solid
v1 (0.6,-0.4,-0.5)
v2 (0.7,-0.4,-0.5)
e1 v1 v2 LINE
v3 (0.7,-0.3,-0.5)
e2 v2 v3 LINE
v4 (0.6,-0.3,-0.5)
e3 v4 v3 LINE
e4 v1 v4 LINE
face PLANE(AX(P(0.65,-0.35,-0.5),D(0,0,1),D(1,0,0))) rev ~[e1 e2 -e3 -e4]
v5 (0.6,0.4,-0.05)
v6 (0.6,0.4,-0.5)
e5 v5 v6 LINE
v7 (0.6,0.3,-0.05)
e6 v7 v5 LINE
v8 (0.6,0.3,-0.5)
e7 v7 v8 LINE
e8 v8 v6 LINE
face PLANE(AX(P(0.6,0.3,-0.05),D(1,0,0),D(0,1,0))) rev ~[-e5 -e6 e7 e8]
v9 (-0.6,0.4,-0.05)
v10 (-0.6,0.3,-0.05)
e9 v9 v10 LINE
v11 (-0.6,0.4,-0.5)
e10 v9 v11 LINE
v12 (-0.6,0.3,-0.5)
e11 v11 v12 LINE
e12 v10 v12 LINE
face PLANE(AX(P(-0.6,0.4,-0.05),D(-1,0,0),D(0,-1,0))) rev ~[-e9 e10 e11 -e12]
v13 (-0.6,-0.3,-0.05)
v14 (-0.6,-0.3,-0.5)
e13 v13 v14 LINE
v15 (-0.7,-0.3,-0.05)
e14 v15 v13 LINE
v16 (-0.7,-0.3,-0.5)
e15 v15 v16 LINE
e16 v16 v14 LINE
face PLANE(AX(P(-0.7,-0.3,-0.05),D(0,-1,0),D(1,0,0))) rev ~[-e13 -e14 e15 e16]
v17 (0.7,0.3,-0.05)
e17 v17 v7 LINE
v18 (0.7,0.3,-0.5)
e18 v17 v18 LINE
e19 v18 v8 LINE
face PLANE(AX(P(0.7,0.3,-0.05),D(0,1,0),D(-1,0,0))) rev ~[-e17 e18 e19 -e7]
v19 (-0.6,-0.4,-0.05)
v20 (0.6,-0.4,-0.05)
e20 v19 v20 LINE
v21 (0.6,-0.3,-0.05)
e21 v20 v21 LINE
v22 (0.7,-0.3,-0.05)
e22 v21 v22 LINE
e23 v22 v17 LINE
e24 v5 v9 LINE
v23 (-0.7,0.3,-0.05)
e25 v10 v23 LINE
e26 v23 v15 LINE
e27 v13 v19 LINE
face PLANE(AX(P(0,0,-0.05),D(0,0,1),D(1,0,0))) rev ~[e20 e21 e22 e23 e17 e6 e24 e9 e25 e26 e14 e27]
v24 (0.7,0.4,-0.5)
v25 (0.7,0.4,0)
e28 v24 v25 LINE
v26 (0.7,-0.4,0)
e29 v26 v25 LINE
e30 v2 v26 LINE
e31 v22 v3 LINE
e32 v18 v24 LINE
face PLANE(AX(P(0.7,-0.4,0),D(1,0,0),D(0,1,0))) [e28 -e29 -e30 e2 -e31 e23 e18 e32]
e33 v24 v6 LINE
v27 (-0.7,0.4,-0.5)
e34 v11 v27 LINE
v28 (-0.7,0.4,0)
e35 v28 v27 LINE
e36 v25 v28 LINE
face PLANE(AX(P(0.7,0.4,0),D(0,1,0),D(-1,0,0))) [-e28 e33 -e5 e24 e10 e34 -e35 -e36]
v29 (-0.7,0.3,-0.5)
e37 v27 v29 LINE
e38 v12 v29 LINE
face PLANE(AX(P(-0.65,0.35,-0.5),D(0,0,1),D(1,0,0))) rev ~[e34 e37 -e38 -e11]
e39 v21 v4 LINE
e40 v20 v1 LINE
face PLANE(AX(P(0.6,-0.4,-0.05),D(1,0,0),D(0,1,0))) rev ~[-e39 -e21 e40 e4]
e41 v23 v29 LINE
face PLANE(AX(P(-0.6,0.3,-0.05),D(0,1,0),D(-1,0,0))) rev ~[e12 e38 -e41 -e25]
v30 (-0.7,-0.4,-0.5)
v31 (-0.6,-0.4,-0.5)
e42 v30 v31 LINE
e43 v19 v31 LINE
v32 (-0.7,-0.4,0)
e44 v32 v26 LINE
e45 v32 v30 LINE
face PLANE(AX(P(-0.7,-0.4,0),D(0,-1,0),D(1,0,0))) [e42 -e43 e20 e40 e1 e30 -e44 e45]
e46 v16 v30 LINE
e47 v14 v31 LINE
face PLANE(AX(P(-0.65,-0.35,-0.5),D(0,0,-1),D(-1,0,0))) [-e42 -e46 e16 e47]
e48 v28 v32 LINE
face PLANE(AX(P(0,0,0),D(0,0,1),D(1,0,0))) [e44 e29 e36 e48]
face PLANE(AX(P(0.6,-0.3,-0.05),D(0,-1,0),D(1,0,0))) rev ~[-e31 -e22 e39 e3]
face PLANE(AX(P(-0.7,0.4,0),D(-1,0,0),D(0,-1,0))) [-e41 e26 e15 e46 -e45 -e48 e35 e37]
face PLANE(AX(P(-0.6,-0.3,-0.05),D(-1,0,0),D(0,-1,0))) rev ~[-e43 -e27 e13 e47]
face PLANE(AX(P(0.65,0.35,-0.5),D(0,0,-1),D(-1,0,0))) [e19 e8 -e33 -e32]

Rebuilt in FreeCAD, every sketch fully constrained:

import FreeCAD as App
import Part
import Sketcher

V = App.Vector


def add_polygon(sketch, points):
    """Adds a closed chain of lines whose ends are joined by coincident constraints."""
    first, n = sketch.GeometryCount, len(points)
    for a, b in zip(points, points[1:] + points[:1]):
        sketch.addGeometry(Part.LineSegment(App.Vector(*a, 0), App.Vector(*b, 0)), False)
    for i in range(n):
        sketch.addConstraint(Sketcher.Constraint("Coincident", first + i, 2, first + (i + 1) % n, 1))

doc = App.newDocument("Part")
body = doc.addObject("PartDesign::Body", "Body")

# Sketch on XY plane
sketch1 = body.newObject("Sketcher::SketchObject", "Sketch")
sketch1.AttachmentSupport = (doc.getObject("XY_Plane"), [""])
sketch1.MapMode = "FlatFace"
add_polygon(sketch1, [(-0.7, 0.4), (-0.7, -0.4), (0.7, -0.4), (0.7, 0.4)])  # lines 0-3
sketch1.addConstraint(Sketcher.Constraint("Vertical", 0))
sketch1.addConstraint(Sketcher.Constraint("Horizontal", 1))
sketch1.addConstraint(Sketcher.Constraint("Vertical", 2))
sketch1.addConstraint(Sketcher.Constraint("Horizontal", 3))
sketch1.addConstraint(Sketcher.Constraint("Symmetric", 0, 2, 2, 2, -1, 1))
sketch1.addConstraint(Sketcher.Constraint("DistanceX", 0, 2, -1, 1, 0.7))
sketch1.addConstraint(Sketcher.Constraint("DistanceY", 0, 2, 0, 1, 0.8))
pad1 = body.newObject("PartDesign::Pad", "Pad")
pad1.Profile = sketch1
pad1.Length = 0.05
pad1.Reversed = True

# Sketch on XY plane
sketch2 = body.newObject("Sketcher::SketchObject", "Sketch001")
sketch2.AttachmentSupport = (doc.getObject("XY_Plane"), [""])
sketch2.MapMode = "FlatFace"
sketch2.AttachmentOffset = App.Placement(V(0, 0, -0.05), App.Rotation())
add_polygon(sketch2, [(-0.7, 0.3), (-0.7, 0.4), (-0.6, 0.4), (-0.6, 0.3)])  # lines 0-3
add_polygon(sketch2, [(-0.7, -0.3), (-0.6, -0.3), (-0.6, -0.4), (-0.7, -0.4)])  # lines 4-7
add_polygon(sketch2, [(0.7, 0.3), (0.6, 0.3), (0.6, 0.4), (0.7, 0.4)])  # lines 8-11
add_polygon(sketch2, [(0.7, -0.4), (0.6, -0.4), (0.6, -0.3), (0.7, -0.3)])  # lines 12-15
sketch2.addConstraint(Sketcher.Constraint("Vertical", 0))
sketch2.addConstraint(Sketcher.Constraint("Horizontal", 1))
sketch2.addConstraint(Sketcher.Constraint("Vertical", 2))
sketch2.addConstraint(Sketcher.Constraint("Horizontal", 3))
sketch2.addConstraint(Sketcher.Constraint("Horizontal", 4))
sketch2.addConstraint(Sketcher.Constraint("Vertical", 5))
sketch2.addConstraint(Sketcher.Constraint("Horizontal", 6))
sketch2.addConstraint(Sketcher.Constraint("Vertical", 7))
sketch2.addConstraint(Sketcher.Constraint("Horizontal", 8))
sketch2.addConstraint(Sketcher.Constraint("Vertical", 9))
sketch2.addConstraint(Sketcher.Constraint("Horizontal", 10))
sketch2.addConstraint(Sketcher.Constraint("Vertical", 11))
sketch2.addConstraint(Sketcher.Constraint("Horizontal", 12))
sketch2.addConstraint(Sketcher.Constraint("Vertical", 13))
sketch2.addConstraint(Sketcher.Constraint("Horizontal", 14))
sketch2.addConstraint(Sketcher.Constraint("Vertical", 15))
sketch2.addConstraint(Sketcher.Constraint("Symmetric", 4, 2, 8, 2, -1, 1))
sketch2.addConstraint(Sketcher.Constraint("Symmetric", 6, 2, 10, 2, -1, 1))
sketch2.addConstraint(Sketcher.Constraint("Symmetric", 1, 2, 12, 2, -1, 1))
sketch2.addConstraint(Sketcher.Constraint("Symmetric", 3, 2, 14, 2, -1, 1))
sketch2.addConstraint(Sketcher.Constraint("Symmetric", 2, 2, 8, 2, -2))
sketch2.addConstraint(Sketcher.Constraint("Symmetric", 0, 2, 10, 2, -2))
sketch2.addConstraint(Sketcher.Constraint("Equal", 14, 0))
sketch2.addConstraint(Sketcher.Constraint("DistanceX", 1, 1, 1, 2, 0.1))
sketch2.addConstraint(Sketcher.Constraint("DistanceX", 0, 2, -1, 1, 0.7))
sketch2.addConstraint(Sketcher.Constraint("DistanceY", -1, 1, 0, 2, 0.4))
pad2 = body.newObject("PartDesign::Pad", "Pad001")
pad2.Profile = sketch2
pad2.Length = 0.45
pad2.Reversed = True

doc.recompute()
